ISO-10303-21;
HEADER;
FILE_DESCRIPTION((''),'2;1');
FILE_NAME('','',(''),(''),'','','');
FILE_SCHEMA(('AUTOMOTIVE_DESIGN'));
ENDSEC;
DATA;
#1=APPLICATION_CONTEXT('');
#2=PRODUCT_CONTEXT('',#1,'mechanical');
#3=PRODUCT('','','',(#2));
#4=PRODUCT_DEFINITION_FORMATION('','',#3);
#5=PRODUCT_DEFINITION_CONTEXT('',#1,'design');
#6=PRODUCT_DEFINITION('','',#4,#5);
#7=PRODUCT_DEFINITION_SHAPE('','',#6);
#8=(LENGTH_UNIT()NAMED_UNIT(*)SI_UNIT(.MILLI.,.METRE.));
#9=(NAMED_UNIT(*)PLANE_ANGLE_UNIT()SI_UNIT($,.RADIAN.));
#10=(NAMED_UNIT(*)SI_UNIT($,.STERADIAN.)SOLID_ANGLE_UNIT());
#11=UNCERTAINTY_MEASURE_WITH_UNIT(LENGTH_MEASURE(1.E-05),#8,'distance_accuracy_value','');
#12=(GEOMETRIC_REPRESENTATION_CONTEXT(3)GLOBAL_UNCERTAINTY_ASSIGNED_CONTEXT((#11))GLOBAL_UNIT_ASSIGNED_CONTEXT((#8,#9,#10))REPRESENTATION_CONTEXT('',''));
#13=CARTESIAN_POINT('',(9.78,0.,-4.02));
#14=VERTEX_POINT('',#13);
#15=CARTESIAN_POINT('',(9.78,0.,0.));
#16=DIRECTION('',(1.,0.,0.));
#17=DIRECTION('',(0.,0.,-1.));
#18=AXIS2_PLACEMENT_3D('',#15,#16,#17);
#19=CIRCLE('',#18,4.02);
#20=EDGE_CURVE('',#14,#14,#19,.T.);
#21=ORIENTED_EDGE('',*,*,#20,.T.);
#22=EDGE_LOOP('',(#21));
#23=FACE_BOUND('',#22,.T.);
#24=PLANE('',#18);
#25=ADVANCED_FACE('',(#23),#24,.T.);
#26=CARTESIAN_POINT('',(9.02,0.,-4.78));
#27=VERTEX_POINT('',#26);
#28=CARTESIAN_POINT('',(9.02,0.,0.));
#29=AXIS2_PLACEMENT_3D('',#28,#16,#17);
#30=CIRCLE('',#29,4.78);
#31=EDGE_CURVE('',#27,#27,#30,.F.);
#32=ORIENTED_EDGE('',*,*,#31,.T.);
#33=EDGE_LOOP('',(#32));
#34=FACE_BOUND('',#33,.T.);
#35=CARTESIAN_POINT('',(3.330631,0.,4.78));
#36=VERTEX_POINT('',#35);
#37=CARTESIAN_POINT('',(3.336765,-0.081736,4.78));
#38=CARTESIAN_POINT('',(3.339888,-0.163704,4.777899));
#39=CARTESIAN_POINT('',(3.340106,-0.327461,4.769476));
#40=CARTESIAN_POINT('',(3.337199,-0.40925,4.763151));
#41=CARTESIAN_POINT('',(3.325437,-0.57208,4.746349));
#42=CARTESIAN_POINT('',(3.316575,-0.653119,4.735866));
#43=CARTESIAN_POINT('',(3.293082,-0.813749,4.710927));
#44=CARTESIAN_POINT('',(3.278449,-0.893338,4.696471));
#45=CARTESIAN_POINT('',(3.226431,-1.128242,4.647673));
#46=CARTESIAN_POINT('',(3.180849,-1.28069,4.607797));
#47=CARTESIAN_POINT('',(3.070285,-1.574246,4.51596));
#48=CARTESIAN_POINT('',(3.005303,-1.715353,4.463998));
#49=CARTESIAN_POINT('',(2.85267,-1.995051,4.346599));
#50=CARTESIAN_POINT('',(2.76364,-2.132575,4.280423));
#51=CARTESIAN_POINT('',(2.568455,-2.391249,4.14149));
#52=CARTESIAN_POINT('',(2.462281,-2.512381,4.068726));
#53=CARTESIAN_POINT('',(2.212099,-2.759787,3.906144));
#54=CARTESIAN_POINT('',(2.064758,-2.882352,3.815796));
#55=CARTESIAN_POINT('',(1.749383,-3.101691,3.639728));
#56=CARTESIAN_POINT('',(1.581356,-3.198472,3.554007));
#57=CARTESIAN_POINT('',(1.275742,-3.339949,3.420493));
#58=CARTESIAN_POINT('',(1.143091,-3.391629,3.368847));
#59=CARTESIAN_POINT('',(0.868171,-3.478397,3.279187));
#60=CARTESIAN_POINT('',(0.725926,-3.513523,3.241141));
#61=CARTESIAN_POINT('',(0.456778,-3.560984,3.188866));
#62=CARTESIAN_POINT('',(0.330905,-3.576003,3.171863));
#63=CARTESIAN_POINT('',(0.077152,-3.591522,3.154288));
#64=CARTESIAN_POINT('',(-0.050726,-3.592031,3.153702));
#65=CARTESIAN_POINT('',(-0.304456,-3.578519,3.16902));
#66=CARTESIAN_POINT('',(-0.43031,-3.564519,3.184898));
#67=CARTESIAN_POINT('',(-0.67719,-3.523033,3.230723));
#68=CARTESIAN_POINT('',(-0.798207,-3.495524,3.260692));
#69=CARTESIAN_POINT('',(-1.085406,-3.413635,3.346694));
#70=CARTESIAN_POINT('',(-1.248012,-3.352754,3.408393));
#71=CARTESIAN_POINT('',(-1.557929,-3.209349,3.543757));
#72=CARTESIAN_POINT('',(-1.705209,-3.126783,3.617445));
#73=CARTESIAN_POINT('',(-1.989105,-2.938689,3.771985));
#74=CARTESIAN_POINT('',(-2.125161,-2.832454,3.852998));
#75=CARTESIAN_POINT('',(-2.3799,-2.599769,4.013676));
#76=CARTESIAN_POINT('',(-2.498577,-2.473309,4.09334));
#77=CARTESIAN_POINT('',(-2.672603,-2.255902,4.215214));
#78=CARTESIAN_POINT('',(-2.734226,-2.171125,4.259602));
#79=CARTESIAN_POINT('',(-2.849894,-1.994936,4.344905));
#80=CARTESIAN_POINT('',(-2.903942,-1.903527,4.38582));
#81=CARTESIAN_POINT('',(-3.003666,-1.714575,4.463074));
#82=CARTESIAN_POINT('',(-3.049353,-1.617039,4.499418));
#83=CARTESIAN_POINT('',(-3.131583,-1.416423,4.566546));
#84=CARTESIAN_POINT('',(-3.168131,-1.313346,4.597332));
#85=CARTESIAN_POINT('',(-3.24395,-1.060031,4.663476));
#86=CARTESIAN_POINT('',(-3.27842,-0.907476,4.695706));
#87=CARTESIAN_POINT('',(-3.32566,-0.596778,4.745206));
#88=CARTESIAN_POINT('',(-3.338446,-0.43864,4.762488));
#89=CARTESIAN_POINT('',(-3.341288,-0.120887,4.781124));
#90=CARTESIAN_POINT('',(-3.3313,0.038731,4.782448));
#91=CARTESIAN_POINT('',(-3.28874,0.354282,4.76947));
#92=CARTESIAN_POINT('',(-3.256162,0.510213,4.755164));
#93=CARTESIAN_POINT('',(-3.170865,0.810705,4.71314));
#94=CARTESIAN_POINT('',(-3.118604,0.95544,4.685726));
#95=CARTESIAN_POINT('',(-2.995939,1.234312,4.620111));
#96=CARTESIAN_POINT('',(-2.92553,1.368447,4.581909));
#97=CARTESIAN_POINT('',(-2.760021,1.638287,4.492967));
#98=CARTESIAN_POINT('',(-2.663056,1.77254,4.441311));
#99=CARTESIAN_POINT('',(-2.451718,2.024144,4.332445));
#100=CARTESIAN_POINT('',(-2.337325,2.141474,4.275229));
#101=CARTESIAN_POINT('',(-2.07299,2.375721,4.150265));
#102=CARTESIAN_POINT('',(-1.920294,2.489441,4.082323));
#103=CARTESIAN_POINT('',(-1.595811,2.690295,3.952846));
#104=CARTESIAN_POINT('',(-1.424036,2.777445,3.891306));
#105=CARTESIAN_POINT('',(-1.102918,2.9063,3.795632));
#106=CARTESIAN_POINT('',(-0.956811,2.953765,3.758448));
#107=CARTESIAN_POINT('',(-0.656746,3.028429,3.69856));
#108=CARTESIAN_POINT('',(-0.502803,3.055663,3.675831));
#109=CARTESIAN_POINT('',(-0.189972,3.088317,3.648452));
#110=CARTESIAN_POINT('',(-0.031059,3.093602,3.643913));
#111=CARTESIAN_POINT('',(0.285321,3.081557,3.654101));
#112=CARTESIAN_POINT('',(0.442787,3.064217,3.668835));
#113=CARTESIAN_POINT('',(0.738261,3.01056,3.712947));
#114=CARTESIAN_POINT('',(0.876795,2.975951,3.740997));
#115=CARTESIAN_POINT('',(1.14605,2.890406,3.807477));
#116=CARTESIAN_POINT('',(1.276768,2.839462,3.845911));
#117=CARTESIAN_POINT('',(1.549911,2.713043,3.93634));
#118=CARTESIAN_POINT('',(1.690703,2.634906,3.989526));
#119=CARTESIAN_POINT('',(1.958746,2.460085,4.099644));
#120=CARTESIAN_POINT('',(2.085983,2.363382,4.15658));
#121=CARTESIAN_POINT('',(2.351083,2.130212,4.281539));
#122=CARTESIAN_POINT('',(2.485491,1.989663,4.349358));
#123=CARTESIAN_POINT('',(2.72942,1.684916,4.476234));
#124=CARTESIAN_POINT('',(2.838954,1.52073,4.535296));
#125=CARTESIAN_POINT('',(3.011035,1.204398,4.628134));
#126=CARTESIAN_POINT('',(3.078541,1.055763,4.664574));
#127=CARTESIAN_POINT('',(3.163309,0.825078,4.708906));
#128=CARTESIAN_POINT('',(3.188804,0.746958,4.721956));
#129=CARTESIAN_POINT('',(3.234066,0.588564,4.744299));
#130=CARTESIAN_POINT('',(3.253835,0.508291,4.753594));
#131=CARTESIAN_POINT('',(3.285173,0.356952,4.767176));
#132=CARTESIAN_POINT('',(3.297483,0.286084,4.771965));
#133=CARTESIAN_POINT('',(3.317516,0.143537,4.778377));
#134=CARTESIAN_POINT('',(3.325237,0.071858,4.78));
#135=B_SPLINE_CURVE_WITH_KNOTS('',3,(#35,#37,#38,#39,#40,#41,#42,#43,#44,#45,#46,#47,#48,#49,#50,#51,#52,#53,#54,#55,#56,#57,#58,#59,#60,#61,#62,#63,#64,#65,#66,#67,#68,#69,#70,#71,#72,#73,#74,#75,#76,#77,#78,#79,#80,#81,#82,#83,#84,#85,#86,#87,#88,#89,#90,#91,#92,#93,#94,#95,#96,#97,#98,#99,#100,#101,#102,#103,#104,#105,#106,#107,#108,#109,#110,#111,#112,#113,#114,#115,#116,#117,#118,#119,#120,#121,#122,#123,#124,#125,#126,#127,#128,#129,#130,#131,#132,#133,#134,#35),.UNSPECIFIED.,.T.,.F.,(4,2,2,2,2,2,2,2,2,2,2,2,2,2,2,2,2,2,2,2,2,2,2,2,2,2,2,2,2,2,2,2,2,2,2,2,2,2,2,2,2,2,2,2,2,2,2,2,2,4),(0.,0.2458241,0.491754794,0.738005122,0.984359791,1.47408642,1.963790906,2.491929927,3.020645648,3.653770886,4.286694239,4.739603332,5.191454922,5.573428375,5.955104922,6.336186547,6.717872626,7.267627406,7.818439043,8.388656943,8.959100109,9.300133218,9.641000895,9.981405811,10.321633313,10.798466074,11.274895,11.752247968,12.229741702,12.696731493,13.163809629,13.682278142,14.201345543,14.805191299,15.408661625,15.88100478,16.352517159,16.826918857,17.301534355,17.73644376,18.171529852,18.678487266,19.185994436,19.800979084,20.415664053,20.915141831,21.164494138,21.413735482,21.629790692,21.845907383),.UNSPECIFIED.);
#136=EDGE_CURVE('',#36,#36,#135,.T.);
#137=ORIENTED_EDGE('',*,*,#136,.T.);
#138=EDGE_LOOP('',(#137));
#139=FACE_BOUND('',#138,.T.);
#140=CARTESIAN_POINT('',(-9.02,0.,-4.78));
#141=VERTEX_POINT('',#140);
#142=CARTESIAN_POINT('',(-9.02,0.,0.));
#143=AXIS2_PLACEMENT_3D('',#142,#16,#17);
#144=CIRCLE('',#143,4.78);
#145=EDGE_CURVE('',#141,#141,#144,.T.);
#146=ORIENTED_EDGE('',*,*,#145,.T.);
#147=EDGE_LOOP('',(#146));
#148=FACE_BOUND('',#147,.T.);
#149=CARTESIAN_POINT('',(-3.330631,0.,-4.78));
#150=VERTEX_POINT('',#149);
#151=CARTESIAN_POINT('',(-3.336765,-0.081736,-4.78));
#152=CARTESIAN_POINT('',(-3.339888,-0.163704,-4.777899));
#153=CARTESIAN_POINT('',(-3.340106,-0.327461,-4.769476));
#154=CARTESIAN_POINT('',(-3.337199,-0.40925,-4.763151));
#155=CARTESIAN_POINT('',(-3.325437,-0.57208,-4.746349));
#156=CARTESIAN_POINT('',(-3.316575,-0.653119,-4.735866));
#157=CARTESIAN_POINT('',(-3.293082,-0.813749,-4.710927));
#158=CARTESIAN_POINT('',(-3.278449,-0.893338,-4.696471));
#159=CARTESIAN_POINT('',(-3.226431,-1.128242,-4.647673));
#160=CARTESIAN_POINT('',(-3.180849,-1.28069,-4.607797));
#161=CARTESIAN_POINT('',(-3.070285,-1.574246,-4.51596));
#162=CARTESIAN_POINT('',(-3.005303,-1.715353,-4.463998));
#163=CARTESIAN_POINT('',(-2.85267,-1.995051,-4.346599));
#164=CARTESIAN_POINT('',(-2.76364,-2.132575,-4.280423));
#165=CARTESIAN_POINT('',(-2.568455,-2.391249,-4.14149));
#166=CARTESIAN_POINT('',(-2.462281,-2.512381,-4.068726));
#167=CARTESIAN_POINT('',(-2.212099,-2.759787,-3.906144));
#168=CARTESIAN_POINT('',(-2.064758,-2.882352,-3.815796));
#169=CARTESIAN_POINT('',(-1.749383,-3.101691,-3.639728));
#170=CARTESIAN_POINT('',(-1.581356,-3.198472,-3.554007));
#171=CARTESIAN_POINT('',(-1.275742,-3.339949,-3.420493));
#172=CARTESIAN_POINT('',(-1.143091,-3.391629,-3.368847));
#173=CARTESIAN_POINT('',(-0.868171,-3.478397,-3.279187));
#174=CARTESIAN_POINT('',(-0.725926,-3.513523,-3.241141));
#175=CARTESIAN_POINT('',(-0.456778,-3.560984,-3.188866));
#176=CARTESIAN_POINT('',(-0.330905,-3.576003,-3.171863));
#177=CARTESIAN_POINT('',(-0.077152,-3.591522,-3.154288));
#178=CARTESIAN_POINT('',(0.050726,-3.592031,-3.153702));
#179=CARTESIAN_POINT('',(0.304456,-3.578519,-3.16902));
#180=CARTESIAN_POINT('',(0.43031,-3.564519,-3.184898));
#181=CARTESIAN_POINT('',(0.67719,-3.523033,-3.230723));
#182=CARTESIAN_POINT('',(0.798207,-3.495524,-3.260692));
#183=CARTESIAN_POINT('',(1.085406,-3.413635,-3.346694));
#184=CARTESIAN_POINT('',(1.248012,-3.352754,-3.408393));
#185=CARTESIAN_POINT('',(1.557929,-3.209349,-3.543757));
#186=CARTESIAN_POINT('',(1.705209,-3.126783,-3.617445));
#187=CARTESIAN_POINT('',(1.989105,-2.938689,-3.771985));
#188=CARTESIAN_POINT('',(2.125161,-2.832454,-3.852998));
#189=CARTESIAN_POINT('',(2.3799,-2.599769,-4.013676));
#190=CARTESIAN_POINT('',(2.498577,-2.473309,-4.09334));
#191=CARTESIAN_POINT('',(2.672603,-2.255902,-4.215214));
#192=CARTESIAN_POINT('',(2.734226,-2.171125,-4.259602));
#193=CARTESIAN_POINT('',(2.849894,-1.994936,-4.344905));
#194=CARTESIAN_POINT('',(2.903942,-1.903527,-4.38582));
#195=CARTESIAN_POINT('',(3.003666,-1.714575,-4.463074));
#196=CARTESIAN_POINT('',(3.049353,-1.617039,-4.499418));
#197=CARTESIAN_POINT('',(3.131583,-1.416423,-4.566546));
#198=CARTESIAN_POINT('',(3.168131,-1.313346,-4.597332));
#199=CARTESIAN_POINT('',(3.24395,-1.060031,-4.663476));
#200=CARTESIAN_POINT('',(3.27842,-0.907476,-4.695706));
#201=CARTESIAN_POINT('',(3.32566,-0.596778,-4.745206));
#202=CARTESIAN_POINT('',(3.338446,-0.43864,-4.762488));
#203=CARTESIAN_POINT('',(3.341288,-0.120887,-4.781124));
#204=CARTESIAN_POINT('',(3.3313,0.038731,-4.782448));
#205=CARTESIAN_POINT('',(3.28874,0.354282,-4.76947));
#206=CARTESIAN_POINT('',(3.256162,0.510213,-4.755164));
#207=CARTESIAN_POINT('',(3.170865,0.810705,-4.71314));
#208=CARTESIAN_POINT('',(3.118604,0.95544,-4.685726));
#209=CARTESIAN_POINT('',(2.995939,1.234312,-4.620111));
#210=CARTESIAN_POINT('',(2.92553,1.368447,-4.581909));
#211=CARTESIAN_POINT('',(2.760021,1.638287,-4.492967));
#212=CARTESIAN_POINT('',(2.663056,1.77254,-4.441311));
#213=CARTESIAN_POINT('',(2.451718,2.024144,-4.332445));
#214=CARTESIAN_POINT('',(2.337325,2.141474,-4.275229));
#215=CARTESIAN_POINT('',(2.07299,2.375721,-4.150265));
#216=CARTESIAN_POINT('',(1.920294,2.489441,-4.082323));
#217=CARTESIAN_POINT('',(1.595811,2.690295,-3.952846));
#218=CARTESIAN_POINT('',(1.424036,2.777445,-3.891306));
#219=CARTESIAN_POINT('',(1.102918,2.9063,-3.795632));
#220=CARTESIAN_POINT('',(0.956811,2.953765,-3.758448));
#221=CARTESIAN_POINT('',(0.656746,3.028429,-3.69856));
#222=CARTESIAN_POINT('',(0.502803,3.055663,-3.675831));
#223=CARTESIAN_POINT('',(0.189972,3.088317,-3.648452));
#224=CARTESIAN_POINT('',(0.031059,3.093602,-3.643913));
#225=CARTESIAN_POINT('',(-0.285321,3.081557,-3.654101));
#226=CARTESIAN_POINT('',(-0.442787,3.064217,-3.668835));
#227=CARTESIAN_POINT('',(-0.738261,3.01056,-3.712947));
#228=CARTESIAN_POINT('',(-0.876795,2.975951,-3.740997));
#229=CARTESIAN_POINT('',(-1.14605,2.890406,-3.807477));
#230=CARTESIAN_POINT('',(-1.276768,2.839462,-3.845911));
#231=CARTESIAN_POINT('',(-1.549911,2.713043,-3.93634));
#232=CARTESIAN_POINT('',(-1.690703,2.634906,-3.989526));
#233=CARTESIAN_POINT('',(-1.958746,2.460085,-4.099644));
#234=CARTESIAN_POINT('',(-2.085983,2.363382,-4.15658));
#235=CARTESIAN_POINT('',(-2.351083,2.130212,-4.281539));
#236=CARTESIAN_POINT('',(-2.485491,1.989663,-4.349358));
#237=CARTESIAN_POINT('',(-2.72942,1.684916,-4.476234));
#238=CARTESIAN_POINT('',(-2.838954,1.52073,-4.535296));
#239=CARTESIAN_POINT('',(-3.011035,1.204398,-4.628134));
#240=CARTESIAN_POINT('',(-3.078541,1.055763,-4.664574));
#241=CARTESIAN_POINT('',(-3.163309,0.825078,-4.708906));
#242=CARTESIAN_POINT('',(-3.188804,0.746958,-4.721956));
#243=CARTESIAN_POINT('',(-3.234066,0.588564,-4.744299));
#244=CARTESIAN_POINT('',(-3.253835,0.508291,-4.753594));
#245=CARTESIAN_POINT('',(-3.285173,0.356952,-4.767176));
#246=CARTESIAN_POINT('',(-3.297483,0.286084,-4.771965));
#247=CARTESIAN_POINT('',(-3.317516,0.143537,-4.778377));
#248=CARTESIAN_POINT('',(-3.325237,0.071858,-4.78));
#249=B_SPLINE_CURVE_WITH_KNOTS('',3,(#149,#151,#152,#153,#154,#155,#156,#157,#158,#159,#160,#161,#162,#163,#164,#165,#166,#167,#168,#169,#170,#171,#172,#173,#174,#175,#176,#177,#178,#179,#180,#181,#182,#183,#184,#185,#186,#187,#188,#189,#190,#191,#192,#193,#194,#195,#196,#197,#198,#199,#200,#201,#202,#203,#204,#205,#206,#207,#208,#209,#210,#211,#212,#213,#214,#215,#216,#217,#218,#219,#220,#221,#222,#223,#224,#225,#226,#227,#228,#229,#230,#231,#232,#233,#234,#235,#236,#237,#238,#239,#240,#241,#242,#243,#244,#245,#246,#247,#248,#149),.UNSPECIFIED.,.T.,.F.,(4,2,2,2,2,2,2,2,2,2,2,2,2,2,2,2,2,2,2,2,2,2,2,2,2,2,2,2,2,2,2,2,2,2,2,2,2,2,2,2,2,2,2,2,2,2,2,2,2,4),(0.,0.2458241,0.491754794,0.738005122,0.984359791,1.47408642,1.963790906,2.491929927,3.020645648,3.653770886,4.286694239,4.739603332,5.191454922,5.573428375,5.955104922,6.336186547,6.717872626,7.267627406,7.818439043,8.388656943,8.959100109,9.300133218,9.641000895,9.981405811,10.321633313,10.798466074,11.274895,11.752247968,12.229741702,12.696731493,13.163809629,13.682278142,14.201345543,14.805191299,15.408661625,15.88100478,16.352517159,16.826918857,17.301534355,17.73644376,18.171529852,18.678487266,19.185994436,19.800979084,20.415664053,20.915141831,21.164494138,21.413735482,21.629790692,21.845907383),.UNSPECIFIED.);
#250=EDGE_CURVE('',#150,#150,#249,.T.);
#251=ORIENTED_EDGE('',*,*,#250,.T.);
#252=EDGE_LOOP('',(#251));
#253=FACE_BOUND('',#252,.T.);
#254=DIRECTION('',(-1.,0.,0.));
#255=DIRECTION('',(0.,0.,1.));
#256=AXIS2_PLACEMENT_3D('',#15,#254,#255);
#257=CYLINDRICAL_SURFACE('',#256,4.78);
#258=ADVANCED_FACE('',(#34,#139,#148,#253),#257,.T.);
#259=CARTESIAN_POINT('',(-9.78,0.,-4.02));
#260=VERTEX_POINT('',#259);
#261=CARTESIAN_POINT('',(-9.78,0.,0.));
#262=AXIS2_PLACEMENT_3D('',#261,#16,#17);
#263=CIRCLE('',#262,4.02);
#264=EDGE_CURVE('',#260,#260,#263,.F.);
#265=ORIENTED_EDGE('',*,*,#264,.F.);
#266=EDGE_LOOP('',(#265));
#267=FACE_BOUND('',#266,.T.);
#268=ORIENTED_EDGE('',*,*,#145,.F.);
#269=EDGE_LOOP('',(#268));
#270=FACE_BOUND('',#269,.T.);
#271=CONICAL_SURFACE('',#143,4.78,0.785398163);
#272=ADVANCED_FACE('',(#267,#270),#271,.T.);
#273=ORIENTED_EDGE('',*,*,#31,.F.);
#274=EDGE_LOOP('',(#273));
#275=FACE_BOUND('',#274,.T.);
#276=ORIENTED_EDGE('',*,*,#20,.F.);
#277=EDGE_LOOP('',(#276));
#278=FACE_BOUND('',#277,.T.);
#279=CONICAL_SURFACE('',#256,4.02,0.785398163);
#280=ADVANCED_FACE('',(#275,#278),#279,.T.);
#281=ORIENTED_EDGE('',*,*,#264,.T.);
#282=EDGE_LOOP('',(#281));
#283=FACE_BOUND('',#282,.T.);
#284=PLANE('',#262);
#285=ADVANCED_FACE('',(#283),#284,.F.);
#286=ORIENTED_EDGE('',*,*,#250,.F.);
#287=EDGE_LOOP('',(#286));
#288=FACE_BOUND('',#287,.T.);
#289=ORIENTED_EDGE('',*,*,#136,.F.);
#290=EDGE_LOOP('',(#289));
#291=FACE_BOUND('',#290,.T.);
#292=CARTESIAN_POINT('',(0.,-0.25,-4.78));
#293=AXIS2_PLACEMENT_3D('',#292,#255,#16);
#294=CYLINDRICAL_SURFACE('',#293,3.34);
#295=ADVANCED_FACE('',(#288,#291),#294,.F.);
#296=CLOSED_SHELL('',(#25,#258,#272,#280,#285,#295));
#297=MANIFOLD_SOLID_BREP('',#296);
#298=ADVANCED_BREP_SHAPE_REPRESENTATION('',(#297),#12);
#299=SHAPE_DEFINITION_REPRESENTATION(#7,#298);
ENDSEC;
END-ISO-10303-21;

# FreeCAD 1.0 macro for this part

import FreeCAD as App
import Part
import Sketcher

V = App.Vector
Q = App.Units.Quantity


def edges_at(feature, points):
    """Names of the edges that pass closest to the given points."""
    edges = feature.Shape.Edges
    near = lambda p: min(range(len(edges)), key=lambda i: edges[i].distToShape(Part.Vertex(*p))[0])
    return sorted({f"Edge{near(p) + 1}" for p in points})

doc = App.newDocument("Part")
body = doc.addObject("PartDesign::Body", "Body")

sketch1 = doc.addObject("Sketcher::SketchObject", "Sketch")
body.addObject(sketch1)
sketch1.AttachmentSupport = (doc.YZ_Plane, [""])
sketch1.MapMode = "FlatFace"
sketch1.addGeometry(Part.Circle(V(0, 0, 0), V(0, 0, 1), 4.8), False)
sketch1.addConstraint([
    Sketcher.Constraint("Coincident", 0, 3, -1, 1),
    Sketcher.Constraint("Diameter", 0, Q("9.56 mm")),
])
pad1 = doc.addObject("PartDesign::Pad", "Pad")
body.addObject(pad1)
pad1.Profile = sketch1
pad1.Length = 19.56
pad1.Midplane = True

sketch2 = doc.addObject("Sketcher::SketchObject", "Sketch001")
body.addObject(sketch2)
sketch2.AttachmentSupport = (doc.XY_Plane, [""])
sketch2.MapMode = "FlatFace"
sketch2.addGeometry(Part.Circle(V(0, -0.2, 0), V(0, 0, 1), 3.3), False)
sketch2.addConstraint([
    Sketcher.Constraint("PointOnObject", 0, 3, -2),
    Sketcher.Constraint("Diameter", 0, Q("6.68 mm")),
    Sketcher.Constraint("DistanceY", 0, 3, -1, 1, Q("0.25 mm")),
])
pocket1 = doc.addObject("PartDesign::Pocket", "Pocket")
body.addObject(pocket1)
pocket1.Profile = sketch2
pocket1.Type = "ThroughAll"
pocket1.Midplane = True
doc.recompute()

chamfer = doc.addObject("PartDesign::Chamfer", "Chamfer")
body.addObject(chamfer)
chamfer.Base = (pocket1, edges_at(pocket1, [(-9.78, 0, 4.78), (9.78, 0, 4.78)]))
chamfer.Size = 0.76

doc.recompute()
